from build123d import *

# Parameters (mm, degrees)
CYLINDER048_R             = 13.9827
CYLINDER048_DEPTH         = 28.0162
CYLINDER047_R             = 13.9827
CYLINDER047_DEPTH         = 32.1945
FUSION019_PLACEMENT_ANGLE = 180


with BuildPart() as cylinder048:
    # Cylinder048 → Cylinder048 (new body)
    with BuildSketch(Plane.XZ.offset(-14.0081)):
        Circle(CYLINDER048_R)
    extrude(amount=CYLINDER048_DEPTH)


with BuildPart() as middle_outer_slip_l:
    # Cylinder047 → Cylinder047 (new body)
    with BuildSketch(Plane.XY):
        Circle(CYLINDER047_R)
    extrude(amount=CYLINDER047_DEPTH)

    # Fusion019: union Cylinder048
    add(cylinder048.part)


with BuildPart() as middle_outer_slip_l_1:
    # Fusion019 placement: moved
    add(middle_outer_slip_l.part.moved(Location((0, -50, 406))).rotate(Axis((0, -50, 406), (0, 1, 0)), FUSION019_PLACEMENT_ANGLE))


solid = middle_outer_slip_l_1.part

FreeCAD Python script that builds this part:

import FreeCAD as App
import Part
import Sketcher

V = App.Vector
Q = App.Units.Quantity

doc = App.newDocument("Part")
body = doc.addObject("PartDesign::Body", "Body")

# Sketch on XZ plane
sketch1 = doc.addObject("Sketcher::SketchObject", "Sketch")
body.addObject(sketch1)
sketch1.AttachmentSupport = (doc.XZ_Plane, [""])
sketch1.MapMode = "FlatFace"
sketch1.AttachmentOffset = App.Placement(V(0, 0, -0.5515 * 25.4), App.Rotation())
sketch1.addGeometry(Part.Circle(V(0, 0, 0), V(0, 0, 1), 14), False)
sketch1.addConstraint(Sketcher.Constraint("Coincident", 0, 3, -1, 1))
sketch1.addConstraint(Sketcher.Constraint("Diameter", 0, Q("1.101 in")))
pad1 = doc.addObject("PartDesign::Pad", "Pad")
body.addObject(pad1)
pad1.Profile = sketch1
pad1.Length = Q("1.103 in")
body2 = doc.addObject("PartDesign::Body", "Body001")

# Sketch on XY plane
sketch2 = doc.addObject("Sketcher::SketchObject", "Sketch001")
body2.addObject(sketch2)
sketch2.AttachmentSupport = (doc.getObject("XY_Plane001"), [""])
sketch2.MapMode = "FlatFace"
sketch2.addGeometry(Part.Circle(V(0, 0, 0), V(0, 0, 1), 14), False)
sketch2.addConstraint(Sketcher.Constraint("Coincident", 0, 3, -1, 1))
sketch2.addConstraint(Sketcher.Constraint("Diameter", 0, Q("1.101 in")))
pad2 = doc.addObject("PartDesign::Pad", "Pad001")
body2.addObject(pad2)
pad2.Profile = sketch2
pad2.Length = Q("1.2675 in")
doc.recompute()

boolean = doc.addObject("PartDesign::Boolean", "Boolean")
body2.addObject(boolean)
boolean.Type = "Fuse"
boolean.addObjects([body])
body3 = doc.addObject("PartDesign::Body", "Body002")
doc.recompute()

body2.Placement = App.Placement(V(0, -50, 406), App.Rotation(V(0, 1, 0), 180))
boolean2 = doc.addObject("PartDesign::Boolean", "Boolean001")
body3.addObject(boolean2)
boolean2.Type = "Fuse"
boolean2.addObjects([body2])

doc.recompute()
